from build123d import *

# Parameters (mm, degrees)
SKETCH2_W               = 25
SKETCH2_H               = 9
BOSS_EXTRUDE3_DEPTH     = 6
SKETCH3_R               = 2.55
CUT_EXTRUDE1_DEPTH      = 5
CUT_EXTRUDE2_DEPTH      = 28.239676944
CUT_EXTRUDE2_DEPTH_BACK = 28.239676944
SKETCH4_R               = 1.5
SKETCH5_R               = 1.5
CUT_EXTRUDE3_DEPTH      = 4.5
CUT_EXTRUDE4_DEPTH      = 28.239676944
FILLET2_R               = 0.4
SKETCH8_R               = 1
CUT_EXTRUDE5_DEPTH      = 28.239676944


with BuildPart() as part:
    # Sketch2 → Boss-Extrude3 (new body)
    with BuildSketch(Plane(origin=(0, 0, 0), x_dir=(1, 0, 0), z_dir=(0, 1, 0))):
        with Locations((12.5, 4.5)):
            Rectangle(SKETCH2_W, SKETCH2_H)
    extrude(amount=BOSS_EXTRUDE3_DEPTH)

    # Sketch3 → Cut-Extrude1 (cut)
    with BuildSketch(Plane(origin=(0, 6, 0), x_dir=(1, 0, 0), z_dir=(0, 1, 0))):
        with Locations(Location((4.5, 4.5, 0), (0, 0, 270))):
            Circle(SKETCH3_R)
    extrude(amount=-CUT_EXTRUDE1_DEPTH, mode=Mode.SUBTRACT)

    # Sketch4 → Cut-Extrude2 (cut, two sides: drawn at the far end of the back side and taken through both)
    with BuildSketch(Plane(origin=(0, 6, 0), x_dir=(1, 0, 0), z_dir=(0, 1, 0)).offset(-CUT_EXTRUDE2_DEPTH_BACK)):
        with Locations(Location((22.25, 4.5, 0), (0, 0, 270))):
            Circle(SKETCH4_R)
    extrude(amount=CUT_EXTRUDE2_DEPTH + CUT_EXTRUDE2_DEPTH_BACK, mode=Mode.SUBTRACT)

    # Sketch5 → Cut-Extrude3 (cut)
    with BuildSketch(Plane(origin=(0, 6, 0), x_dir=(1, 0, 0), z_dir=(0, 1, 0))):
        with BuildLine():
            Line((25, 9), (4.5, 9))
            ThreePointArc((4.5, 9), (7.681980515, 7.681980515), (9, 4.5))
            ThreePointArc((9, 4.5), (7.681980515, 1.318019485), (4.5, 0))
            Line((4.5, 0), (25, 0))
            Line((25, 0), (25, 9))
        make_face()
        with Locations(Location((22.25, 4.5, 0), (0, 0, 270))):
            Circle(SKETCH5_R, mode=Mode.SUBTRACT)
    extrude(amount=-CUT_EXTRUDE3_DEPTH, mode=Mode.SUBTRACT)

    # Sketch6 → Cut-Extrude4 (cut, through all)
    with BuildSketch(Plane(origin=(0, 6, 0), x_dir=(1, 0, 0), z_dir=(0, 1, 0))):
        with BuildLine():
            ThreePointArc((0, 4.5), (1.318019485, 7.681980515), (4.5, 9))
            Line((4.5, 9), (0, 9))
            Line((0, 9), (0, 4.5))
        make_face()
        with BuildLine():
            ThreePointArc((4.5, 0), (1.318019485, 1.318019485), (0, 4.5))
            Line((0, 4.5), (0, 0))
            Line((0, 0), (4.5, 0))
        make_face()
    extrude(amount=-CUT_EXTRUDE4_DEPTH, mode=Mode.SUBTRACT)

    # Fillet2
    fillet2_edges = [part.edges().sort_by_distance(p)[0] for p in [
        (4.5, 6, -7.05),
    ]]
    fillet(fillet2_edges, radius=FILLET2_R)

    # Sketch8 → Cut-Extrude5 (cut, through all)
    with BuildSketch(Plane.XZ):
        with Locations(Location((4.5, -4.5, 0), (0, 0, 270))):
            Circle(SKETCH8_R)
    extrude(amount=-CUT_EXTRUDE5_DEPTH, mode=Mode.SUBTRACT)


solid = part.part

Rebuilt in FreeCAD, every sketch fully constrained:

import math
import FreeCAD as App
import Part
import Sketcher
from FreeCAD import Vector
Q = App.Units.Quantity


def edges_at(feature, points):
    """Names of the edges that pass closest to the given points."""
    edges = feature.Shape.Edges
    near = lambda p: min(range(len(edges)), key=lambda i: edges[i].distToShape(Part.Vertex(*p))[0])
    return sorted({f"Edge{near(p) + 1}" for p in points})


def add_polygon(sketch, points):
    """Adds a closed chain of lines whose ends are joined by coincident constraints."""
    first, n = sketch.GeometryCount, len(points)
    for a, b in zip(points, points[1:] + points[:1]):
        sketch.addGeometry(Part.LineSegment(App.Vector(*a, 0), App.Vector(*b, 0)), False)
    for i in range(n):
        sketch.addConstraint(Sketcher.Constraint("Coincident", first + i, 2, first + (i + 1) % n, 1))

doc = App.newDocument("Part")
body = doc.addObject("PartDesign::Body", "Body")

sketch1 = body.newObject("Sketcher::SketchObject", "Sketch")
sketch1.AttachmentSupport = (doc.getObject("XZ_Plane"), [""])
sketch1.MapMode = "FlatFace"
add_polygon(sketch1, [(0, -9), (0, 0), (25, 0), (25, -9)])
sketch1.addConstraint([
    Sketcher.Constraint("Vertical", 0),
    Sketcher.Constraint("Horizontal", 1),
    Sketcher.Constraint("Vertical", 2),
    Sketcher.Constraint("Horizontal", 3),
    Sketcher.Constraint("Coincident", 0, 2, -1, 1),
    Sketcher.Constraint("DistanceX", 1, 1, 1, 2, Q("25 mm")),
    Sketcher.Constraint("DistanceY", 0, 1, 0, 2, Q("9 mm")),
])
pad1 = body.newObject("PartDesign::Pad", "Pad")
pad1.Profile = sketch1
pad1.Length = 6
pad1.Reversed = True

sketch2 = body.newObject("Sketcher::SketchObject", "Sketch001")
sketch2.AttachmentSupport = (doc.getObject("XZ_Plane"), [""])
sketch2.MapMode = "FlatFace"
sketch2.AttachmentOffset = App.Placement(Vector(0, 0, -6), App.Rotation())
sketch2.addGeometry(Part.Circle(Vector(4.5, -4.5, 0), Vector(0, 0, 1), 2.5), False)
sketch2.addConstraint([
    Sketcher.Constraint("Diameter", 0, Q("5.1 mm")),
    Sketcher.Constraint("DistanceX", -1, 1, 0, 3, Q("4.5 mm")),
    Sketcher.Constraint("DistanceY", 0, 3, -1, 1, Q("4.5 mm")),
])
pocket1 = body.newObject("PartDesign::Pocket", "Pocket")
pocket1.Profile = sketch2
pocket1.Length = 5
pocket1.Reversed = True

sketch3 = body.newObject("Sketcher::SketchObject", "Sketch002")
sketch3.AttachmentSupport = (doc.getObject("XZ_Plane"), [""])
sketch3.MapMode = "FlatFace"
sketch3.AttachmentOffset = App.Placement(Vector(0, 0, -6), App.Rotation())
sketch3.addGeometry(Part.Circle(Vector(22.2, -4.5, 0), Vector(0, 0, 1), 1.5), False)
sketch3.addConstraint([
    Sketcher.Constraint("Diameter", 0, Q("3 mm")),
    Sketcher.Constraint("DistanceY", 0, 3, -1, 1, Q("4.5 mm")),
    Sketcher.Constraint("DistanceX", -1, 1, 0, 3, Q("22.25 mm")),
])
pocket2 = body.newObject("PartDesign::Pocket", "Pocket001")
pocket2.Profile = sketch3
pocket2.Type = "ThroughAll"
pocket2.Midplane = True

sketch4 = body.newObject("Sketcher::SketchObject", "Sketch003")
sketch4.AttachmentSupport = (doc.getObject("XZ_Plane"), [""])
sketch4.MapMode = "FlatFace"
sketch4.AttachmentOffset = App.Placement(Vector(0, 0, -6), App.Rotation())
sketch4.addGeometry([
    Part.LineSegment(Vector(25, -9, 0), Vector(4.5, -9, 0)),
    Part.ArcOfCircle(Part.Circle(Vector(4.5, -4.5, 0), Vector(0, 0, 1), 4.5), math.radians(-90), math.radians(0)),
    Part.ArcOfCircle(Part.Circle(Vector(4.5, -4.5, 0), Vector(0, 0, 1), 4.5), math.radians(0), math.radians(90)),
    Part.LineSegment(Vector(4.5, 0, 0), Vector(25, 0, 0)),
    Part.LineSegment(Vector(25, 0, 0), Vector(25, -9, 0)),
    Part.Circle(Vector(22.2, -4.5, 0), Vector(0, 0, 1), 1.5),
], False)
sketch4.addConstraint([
    Sketcher.Constraint("Tangent", 0, 2, 1, 1),
    Sketcher.Constraint("Tangent", 1, 2, 2, 1),
    Sketcher.Constraint("Tangent", 2, 2, 3, 1),
    Sketcher.Constraint("Coincident", 3, 2, 4, 1),
    Sketcher.Constraint("Coincident", 4, 2, 0, 1),
    Sketcher.Constraint("Horizontal", 0),
    Sketcher.Constraint("Horizontal", 3),
    Sketcher.Constraint("Vertical", 4),
    Sketcher.Constraint("Equal", 1, 2),
    Sketcher.Constraint("PointOnObject", 2, 2, -1),
    Sketcher.Constraint("Horizontal", 2, 3, 5, 3),
    Sketcher.Constraint("Horizontal", 5, 3, 1, 2),
    Sketcher.Constraint("Diameter", 5, Q("3 mm")),
    Sketcher.Constraint("Radius", 1, Q("4.5 mm")),
    Sketcher.Constraint("DistanceX", 0, 2, 0, 1, Q("20.5 mm")),
    Sketcher.Constraint("DistanceX", -1, 1, 1, 2, Q("9 mm")),
    Sketcher.Constraint("DistanceX", -1, 1, 5, 3, Q("22.25 mm")),
])
pocket3 = body.newObject("PartDesign::Pocket", "Pocket002")
pocket3.Profile = sketch4
pocket3.Length = 4.5
pocket3.Reversed = True

sketch5 = body.newObject("Sketcher::SketchObject", "Sketch004")
sketch5.AttachmentSupport = (doc.getObject("XZ_Plane"), [""])
sketch5.MapMode = "FlatFace"
sketch5.AttachmentOffset = App.Placement(Vector(0, 0, -6), App.Rotation())
sketch5.addGeometry([
    Part.ArcOfCircle(Part.Circle(Vector(4.5, -4.5, 0), Vector(0, 0, 1), 4.5), math.radians(-180), math.radians(-90)),
    Part.LineSegment(Vector(4.5, -9, 0), Vector(0, -9, 0)),
    Part.LineSegment(Vector(0, -9, 0), Vector(0, -4.5, 0)),
    Part.ArcOfCircle(Part.Circle(Vector(4.5, -4.5, 0), Vector(0, 0, 1), 4.5), math.radians(90), math.radians(180)),
    Part.LineSegment(Vector(0, -4.5, 0), Vector(0, 0, 0)),
    Part.LineSegment(Vector(0, 0, 0), Vector(4.5, 0, 0)),
], False)
sketch5.addConstraint([
    Sketcher.Constraint("Tangent", 0, 2, 1, 1),
    Sketcher.Constraint("Coincident", 1, 2, 2, 1),
    Sketcher.Constraint("Tangent", 2, 2, 0, 1),
    Sketcher.Constraint("Tangent", 3, 2, 4, 1),
    Sketcher.Constraint("Coincident", 4, 2, 5, 1),
    Sketcher.Constraint("Tangent", 5, 2, 3, 1),
    Sketcher.Constraint("Horizontal", 1),
    Sketcher.Constraint("Vertical", 2),
    Sketcher.Constraint("Vertical", 4),
    Sketcher.Constraint("Horizontal", 5),
    Sketcher.Constraint("Coincident", 4, 2, -1, 1),
    Sketcher.Constraint("Coincident", 3, 3, 0, 3),
    Sketcher.Constraint("Equal", 0, 3),
    Sketcher.Constraint("Radius", 0, Q("4.5 mm")),
])
pocket4 = body.newObject("PartDesign::Pocket", "Pocket003")
pocket4.Profile = sketch5
pocket4.Type = "ThroughAll"
pocket4.Reversed = True
doc.recompute()

fillet = body.newObject("PartDesign::Fillet", "Fillet")
fillet.Base = (pocket4, edges_at(pocket4, [(4.5, 6, -7.05)]))
fillet.Radius = 0.4

sketch6 = body.newObject("Sketcher::SketchObject", "Sketch005")
sketch6.AttachmentSupport = (doc.getObject("XZ_Plane"), [""])
sketch6.MapMode = "FlatFace"
sketch6.addGeometry(Part.Circle(Vector(4.5, -4.5, 0), Vector(0, 0, 1), 1), False)
sketch6.addConstraint([
    Sketcher.Constraint("Diameter", 0, Q("2 mm")),
    Sketcher.Constraint("DistanceX", -1, 1, 0, 3, Q("4.5 mm")),
    Sketcher.Constraint("DistanceY", 0, 3, -1, 1, Q("4.5 mm")),
])
pocket5 = body.newObject("PartDesign::Pocket", "Pocket004")
pocket5.Profile = sketch6
pocket5.Type = "ThroughAll"

doc.recompute()
